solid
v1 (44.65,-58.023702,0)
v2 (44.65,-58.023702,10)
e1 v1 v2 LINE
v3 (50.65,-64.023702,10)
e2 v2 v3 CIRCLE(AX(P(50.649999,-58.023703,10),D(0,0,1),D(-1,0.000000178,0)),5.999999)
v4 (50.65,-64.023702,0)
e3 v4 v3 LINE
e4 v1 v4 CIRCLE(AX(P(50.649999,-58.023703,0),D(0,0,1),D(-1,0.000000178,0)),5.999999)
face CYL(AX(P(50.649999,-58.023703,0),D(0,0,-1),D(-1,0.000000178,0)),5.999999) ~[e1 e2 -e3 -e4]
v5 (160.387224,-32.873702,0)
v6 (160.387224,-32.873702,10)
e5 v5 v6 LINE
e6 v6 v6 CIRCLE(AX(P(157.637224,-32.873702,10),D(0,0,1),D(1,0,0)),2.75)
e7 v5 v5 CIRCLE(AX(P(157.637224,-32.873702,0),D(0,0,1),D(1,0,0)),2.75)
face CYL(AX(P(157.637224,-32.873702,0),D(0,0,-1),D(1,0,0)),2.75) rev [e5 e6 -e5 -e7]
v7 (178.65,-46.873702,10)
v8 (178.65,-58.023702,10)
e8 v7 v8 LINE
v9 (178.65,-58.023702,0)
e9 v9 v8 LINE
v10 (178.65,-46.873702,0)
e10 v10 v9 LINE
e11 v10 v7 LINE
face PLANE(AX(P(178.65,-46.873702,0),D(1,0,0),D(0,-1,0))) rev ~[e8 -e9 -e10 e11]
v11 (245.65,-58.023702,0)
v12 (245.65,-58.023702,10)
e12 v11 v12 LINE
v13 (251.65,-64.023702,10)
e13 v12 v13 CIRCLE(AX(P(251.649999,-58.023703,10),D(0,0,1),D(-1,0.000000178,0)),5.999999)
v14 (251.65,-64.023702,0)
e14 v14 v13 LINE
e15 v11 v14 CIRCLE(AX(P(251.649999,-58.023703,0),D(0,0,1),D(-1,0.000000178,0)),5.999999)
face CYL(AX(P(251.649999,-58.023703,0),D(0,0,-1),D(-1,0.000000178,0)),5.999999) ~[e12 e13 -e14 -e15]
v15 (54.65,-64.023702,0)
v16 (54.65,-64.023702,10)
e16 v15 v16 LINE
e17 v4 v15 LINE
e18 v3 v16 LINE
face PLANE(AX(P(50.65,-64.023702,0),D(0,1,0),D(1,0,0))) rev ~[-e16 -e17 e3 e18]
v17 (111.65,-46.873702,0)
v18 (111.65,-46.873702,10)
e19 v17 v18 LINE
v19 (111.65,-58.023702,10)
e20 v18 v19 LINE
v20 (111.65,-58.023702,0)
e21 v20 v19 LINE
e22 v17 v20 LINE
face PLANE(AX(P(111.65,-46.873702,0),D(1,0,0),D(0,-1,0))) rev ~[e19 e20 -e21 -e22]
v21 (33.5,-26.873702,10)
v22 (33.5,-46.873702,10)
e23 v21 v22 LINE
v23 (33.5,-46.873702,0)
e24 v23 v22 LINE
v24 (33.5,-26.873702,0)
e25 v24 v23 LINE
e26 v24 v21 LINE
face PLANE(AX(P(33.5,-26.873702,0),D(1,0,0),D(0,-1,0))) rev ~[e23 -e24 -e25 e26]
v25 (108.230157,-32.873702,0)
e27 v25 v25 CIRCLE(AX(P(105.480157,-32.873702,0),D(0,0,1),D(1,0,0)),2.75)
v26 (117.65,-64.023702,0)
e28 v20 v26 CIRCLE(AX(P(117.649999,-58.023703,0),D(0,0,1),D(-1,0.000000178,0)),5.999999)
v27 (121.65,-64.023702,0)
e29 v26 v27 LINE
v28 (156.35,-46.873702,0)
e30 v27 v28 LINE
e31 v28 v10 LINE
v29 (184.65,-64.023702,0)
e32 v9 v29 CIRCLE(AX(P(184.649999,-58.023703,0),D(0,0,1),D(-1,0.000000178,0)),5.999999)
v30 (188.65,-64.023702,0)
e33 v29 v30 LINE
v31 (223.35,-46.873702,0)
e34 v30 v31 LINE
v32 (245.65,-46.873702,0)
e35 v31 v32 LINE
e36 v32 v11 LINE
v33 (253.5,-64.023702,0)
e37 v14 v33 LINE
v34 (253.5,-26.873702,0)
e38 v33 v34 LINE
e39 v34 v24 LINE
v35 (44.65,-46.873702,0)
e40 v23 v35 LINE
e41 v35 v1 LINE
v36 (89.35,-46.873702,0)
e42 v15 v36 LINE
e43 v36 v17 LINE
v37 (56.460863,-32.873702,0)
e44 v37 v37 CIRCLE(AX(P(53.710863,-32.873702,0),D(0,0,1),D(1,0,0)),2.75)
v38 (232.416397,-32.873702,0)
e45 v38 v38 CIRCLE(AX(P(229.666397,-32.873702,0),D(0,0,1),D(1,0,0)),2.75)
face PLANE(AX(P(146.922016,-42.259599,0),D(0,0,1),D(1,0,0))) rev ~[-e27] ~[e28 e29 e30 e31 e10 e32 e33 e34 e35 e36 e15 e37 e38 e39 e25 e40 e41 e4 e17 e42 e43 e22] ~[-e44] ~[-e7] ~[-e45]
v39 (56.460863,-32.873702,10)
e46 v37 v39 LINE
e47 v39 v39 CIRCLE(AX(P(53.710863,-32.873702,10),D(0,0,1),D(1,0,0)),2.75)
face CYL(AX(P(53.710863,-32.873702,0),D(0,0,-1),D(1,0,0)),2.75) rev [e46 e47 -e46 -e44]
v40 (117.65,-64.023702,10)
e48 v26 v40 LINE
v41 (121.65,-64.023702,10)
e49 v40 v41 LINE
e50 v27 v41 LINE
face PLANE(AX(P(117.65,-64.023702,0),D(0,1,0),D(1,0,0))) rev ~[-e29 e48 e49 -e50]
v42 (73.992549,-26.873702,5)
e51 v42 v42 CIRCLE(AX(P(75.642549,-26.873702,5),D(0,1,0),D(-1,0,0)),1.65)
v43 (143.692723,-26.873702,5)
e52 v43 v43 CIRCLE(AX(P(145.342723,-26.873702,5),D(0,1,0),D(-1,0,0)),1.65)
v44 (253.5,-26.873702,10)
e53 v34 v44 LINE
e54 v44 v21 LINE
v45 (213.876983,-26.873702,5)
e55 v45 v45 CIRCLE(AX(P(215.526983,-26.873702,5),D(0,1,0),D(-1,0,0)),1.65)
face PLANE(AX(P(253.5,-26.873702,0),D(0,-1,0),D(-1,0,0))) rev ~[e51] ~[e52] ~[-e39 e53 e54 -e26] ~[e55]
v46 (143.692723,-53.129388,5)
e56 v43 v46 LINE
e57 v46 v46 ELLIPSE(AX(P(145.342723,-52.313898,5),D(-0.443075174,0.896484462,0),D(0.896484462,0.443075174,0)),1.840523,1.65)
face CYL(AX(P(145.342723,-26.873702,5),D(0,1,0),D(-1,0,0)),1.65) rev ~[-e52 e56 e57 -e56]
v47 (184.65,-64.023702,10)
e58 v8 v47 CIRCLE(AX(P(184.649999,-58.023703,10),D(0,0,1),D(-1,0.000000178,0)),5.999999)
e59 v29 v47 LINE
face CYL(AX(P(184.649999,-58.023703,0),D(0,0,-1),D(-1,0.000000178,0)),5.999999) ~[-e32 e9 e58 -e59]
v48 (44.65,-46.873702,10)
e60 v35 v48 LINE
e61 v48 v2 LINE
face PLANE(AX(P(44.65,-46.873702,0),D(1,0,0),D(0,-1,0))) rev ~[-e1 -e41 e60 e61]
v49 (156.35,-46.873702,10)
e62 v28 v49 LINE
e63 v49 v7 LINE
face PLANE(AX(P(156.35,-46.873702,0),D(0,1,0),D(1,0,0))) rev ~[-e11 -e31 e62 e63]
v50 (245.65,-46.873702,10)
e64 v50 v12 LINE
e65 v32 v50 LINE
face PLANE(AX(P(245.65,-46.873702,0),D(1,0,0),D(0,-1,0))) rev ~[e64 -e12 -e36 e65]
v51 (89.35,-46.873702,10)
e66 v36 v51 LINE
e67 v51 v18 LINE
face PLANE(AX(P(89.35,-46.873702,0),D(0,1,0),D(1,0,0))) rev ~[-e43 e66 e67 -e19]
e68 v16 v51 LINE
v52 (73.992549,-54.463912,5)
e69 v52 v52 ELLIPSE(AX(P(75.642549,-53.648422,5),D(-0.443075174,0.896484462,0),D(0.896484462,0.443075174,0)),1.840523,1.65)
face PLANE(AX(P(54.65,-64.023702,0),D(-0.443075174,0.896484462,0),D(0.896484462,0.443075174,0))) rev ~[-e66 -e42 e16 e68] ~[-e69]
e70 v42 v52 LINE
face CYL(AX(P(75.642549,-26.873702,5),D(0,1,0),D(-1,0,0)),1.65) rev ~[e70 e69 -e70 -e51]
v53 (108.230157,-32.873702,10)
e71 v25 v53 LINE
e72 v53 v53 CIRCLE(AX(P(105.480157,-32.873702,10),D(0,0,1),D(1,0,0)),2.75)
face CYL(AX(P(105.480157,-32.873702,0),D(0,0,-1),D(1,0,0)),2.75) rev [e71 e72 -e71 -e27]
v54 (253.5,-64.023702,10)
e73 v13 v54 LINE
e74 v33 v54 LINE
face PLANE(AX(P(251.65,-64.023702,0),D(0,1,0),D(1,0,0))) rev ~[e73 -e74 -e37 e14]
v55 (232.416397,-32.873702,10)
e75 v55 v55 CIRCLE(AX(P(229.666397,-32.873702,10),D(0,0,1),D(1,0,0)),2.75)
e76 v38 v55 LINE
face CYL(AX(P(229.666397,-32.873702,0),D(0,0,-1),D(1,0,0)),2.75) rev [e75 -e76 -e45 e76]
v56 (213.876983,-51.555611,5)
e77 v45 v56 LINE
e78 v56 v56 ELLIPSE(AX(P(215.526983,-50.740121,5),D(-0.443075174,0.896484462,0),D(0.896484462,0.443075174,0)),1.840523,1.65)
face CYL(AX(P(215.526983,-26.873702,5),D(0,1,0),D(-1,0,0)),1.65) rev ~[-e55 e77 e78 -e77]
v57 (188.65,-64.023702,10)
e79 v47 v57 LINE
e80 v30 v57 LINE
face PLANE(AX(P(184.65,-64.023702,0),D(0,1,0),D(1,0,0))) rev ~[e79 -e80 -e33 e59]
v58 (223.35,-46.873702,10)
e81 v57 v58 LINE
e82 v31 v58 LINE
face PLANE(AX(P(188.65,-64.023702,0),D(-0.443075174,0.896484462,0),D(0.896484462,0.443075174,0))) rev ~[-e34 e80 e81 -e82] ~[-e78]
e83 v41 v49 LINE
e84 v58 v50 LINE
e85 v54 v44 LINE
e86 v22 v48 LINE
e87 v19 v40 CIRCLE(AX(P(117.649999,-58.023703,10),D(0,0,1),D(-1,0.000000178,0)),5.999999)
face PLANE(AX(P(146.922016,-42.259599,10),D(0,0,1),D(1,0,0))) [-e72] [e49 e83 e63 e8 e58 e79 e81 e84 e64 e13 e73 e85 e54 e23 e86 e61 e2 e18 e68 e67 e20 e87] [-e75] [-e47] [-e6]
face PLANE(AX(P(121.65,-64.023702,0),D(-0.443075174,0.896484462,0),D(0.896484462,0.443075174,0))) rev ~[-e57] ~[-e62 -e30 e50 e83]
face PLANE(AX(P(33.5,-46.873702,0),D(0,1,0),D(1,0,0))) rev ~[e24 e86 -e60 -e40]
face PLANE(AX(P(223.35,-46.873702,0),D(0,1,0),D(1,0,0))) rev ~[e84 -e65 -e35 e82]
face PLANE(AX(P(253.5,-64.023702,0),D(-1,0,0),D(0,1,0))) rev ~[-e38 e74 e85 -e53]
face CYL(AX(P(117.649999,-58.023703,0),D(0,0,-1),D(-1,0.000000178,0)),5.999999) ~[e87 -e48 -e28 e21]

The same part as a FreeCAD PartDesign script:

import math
import FreeCAD as App
import Part
import Sketcher

V = App.Vector
Q = App.Units.Quantity

doc = App.newDocument("Part")
body = doc.addObject("PartDesign::Body", "Body")

# Sketch on XY plane
sketch1 = body.newObject("Sketcher::SketchObject", "Sketch")
sketch1.AttachmentSupport = (doc.getObject("XY_Plane"), [""])
sketch1.MapMode = "FlatFace"
sketch1.addGeometry([
    Part.LineSegment(V(253.5, -26.9, 0), V(33.5, -26.9, 0)),  # 0
    Part.LineSegment(V(33.5, -26.9, 0), V(33.5, -46.9, 0)),  # 1
    Part.LineSegment(V(33.5, -46.9, 0), V(44.6, -46.9, 0)),  # 2
    Part.LineSegment(V(44.6, -46.9, 0), V(44.6, -58, 0)),  # 3
    Part.ArcOfCircle(Part.Circle(V(50.6, -58, 0), V(0, 0, 1), 6), math.radians(180), math.radians(270)),  # 4
    Part.LineSegment(V(50.6, -64, 0), V(54.6, -64, 0)),  # 5
    Part.LineSegment(V(54.6, -64, 0), V(89.3, -46.9, 0)),  # 6
    Part.LineSegment(V(89.3, -46.9, 0), V(111.7, -46.9, 0)),  # 7
    Part.LineSegment(V(111.7, -46.9, 0), V(111.7, -58, 0)),  # 8
    Part.ArcOfCircle(Part.Circle(V(117.6, -58, 0), V(0, 0, 1), 6), math.radians(180), math.radians(270)),  # 9
    Part.LineSegment(V(117.7, -64, 0), V(121.7, -64, 0)),  # 10
    Part.LineSegment(V(121.7, -64, 0), V(156.3, -46.9, 0)),  # 11
    Part.LineSegment(V(156.3, -46.9, 0), V(178.7, -46.9, 0)),  # 12
    Part.LineSegment(V(178.7, -46.9, 0), V(178.7, -58, 0)),  # 13
    Part.ArcOfCircle(Part.Circle(V(184.6, -58, 0), V(0, 0, 1), 6), math.radians(180), math.radians(270)),  # 14
    Part.LineSegment(V(184.7, -64, 0), V(188.7, -64, 0)),  # 15
    Part.LineSegment(V(188.7, -64, 0), V(223.3, -46.9, 0)),  # 16
    Part.LineSegment(V(223.3, -46.9, 0), V(245.7, -46.9, 0)),  # 17
    Part.LineSegment(V(245.7, -46.9, 0), V(245.7, -58, 0)),  # 18
    Part.ArcOfCircle(Part.Circle(V(251.6, -58, 0), V(0, 0, 1), 6), math.radians(180), math.radians(270)),  # 19
    Part.LineSegment(V(251.7, -64, 0), V(253.5, -64, 0)),  # 20
    Part.LineSegment(V(253.5, -64, 0), V(253.5, -26.9, 0)),  # 21
    Part.Circle(V(53.7, -32.9, 0), V(0, 0, 1), 2.8),  # 22
    Part.Circle(V(105.5, -32.9, 0), V(0, 0, 1), 2.8),  # 23
    Part.Circle(V(157.6, -32.9, 0), V(0, 0, 1), 2.8),  # 24
    Part.Circle(V(229.7, -32.9, 0), V(0, 0, 1), 2.8),  # 25
], False)
sketch1.addConstraint([
    Sketcher.Constraint("Coincident", 0, 2, 1, 1),
    Sketcher.Constraint("Coincident", 1, 2, 2, 1),
    Sketcher.Constraint("Coincident", 2, 2, 3, 1),
    Sketcher.Constraint("Tangent", 3, 2, 4, 1),
    Sketcher.Constraint("Tangent", 4, 2, 5, 1),
    Sketcher.Constraint("Coincident", 5, 2, 6, 1),
    Sketcher.Constraint("Coincident", 6, 2, 7, 1),
    Sketcher.Constraint("Coincident", 7, 2, 8, 1),
    Sketcher.Constraint("Tangent", 8, 2, 9, 1),
    Sketcher.Constraint("Tangent", 9, 2, 10, 1),
    Sketcher.Constraint("Coincident", 10, 2, 11, 1),
    Sketcher.Constraint("Coincident", 11, 2, 12, 1),
    Sketcher.Constraint("Coincident", 12, 2, 13, 1),
    Sketcher.Constraint("Tangent", 13, 2, 14, 1),
    Sketcher.Constraint("Tangent", 14, 2, 15, 1),
    Sketcher.Constraint("Coincident", 15, 2, 16, 1),
    Sketcher.Constraint("Coincident", 16, 2, 17, 1),
    Sketcher.Constraint("Coincident", 17, 2, 18, 1),
    Sketcher.Constraint("Tangent", 18, 2, 19, 1),
    Sketcher.Constraint("Tangent", 19, 2, 20, 1),
    Sketcher.Constraint("Coincident", 20, 2, 21, 1),
    Sketcher.Constraint("Coincident", 21, 2, 0, 1),
    Sketcher.Constraint("Horizontal", 0),
    Sketcher.Constraint("Vertical", 1),
    Sketcher.Constraint("Horizontal", 2),
    Sketcher.Constraint("Vertical", 3),
    Sketcher.Constraint("Horizontal", 5),
    Sketcher.Constraint("Horizontal", 7),
    Sketcher.Constraint("Vertical", 8),
    Sketcher.Constraint("Horizontal", 10),
    Sketcher.Constraint("Horizontal", 12),
    Sketcher.Constraint("Vertical", 13),
    Sketcher.Constraint("Horizontal", 15),
    Sketcher.Constraint("Horizontal", 17),
    Sketcher.Constraint("Vertical", 18),
    Sketcher.Constraint("Horizontal", 20),
    Sketcher.Constraint("Vertical", 21),
    Sketcher.Constraint("Equal", 4, 9),
    Sketcher.Constraint("Equal", 9, 14),
    Sketcher.Constraint("Equal", 14, 19),
    Sketcher.Constraint("Equal", 22, 23),
    Sketcher.Constraint("Equal", 23, 24),
    Sketcher.Constraint("Equal", 24, 25),
    Sketcher.Constraint("Parallel", 6, 11),
    Sketcher.Constraint("Parallel", 11, 16),
    Sketcher.Constraint("Horizontal", 4, 3, 9, 3),
    Sketcher.Constraint("Horizontal", 9, 3, 14, 3),
    Sketcher.Constraint("Horizontal", 14, 3, 19, 3),
    Sketcher.Constraint("Horizontal", 22, 3, 23, 3),
    Sketcher.Constraint("Horizontal", 23, 3, 24, 3),
    Sketcher.Constraint("Horizontal", 24, 3, 25, 3),
    Sketcher.Constraint("Horizontal", 2, 2, 6, 2),
    Sketcher.Constraint("Horizontal", 7, 2, 11, 2),
    Sketcher.Constraint("Horizontal", 12, 2, 16, 2),
    Sketcher.Constraint("Equal", 5, 10),
    Sketcher.Constraint("Equal", 7, 12),
    Sketcher.Constraint("Equal", 10, 15),
    Sketcher.Constraint("Equal", 12, 17),
    Sketcher.Constraint("Equal", 2, 3),
    Sketcher.Constraint("Radius", 4, Q("5.999999 mm")),
    Sketcher.Constraint("Diameter", 22, Q("5.5 mm")),
    Sketcher.Constraint("DistanceX", 0, 2, 0, 1, Q("220 mm")),
    Sketcher.Constraint("DistanceX", 5, 1, 5, 2, Q("4 mm")),
    Sketcher.Constraint("DistanceY", 1, 2, 1, 1, Q("20 mm")),
    Sketcher.Constraint("DistanceX", 7, 1, 7, 2, Q("22.3 mm")),
    Sketcher.Constraint("DistanceX", 4, 3, 9, 3, Q("67 mm")),
    Sketcher.Constraint("DistanceY", 22, 3, 0, 2, Q("6 mm")),
    Sketcher.Constraint("DistanceX", 2, 1, 2, 2, Q("11.15 mm")),
    Sketcher.Constraint("DistanceX", -1, 1, 0, 2, Q("33.5 mm")),
    Sketcher.Constraint("DistanceY", 4, 2, -1, 1, Q("64.023702 mm")),
    Sketcher.Constraint("DistanceX", 25, 3, 19, 3, Q("21.983602 mm")),
    Sketcher.Constraint("DistanceX", 23, 3, 9, 3, Q("12.169842 mm")),
    Sketcher.Constraint("DistanceX", 22, 3, 24, 3, Q("103.926361 mm")),
    Sketcher.Constraint("DistanceX", -1, 1, 22, 3, Q("53.710863 mm")),
])
pad1 = body.newObject("PartDesign::Pad", "Pad")
pad1.Profile = sketch1
pad1.Length = 10

# Sketch on XZ plane
sketch2 = body.newObject("Sketcher::SketchObject", "Sketch001")
sketch2.AttachmentSupport = (doc.getObject("XZ_Plane"), [""])
sketch2.MapMode = "FlatFace"
sketch2.AttachmentOffset = App.Placement(V(0, 0, 26.873702), App.Rotation())
sketch2.addGeometry([
    Part.Circle(V(75.6, 5, 0), V(0, 0, 1), 1.6),
    Part.Circle(V(145.3, 5, 0), V(0, 0, 1), 1.6),
    Part.Circle(V(215.5, 5, 0), V(0, 0, 1), 1.6),
], False)
sketch2.addConstraint([
    Sketcher.Constraint("Equal", 0, 1),
    Sketcher.Constraint("Equal", 1, 2),
    Sketcher.Constraint("Horizontal", 0, 3, 1, 3),
    Sketcher.Constraint("Horizontal", 1, 3, 2, 3),
    Sketcher.Constraint("Diameter", 0, Q("3.3 mm")),
    Sketcher.Constraint("DistanceY", -1, 1, 0, 3, Q("5 mm")),
    Sketcher.Constraint("DistanceX", -1, 1, 0, 3, Q("75.642549 mm")),
    Sketcher.Constraint("DistanceX", 1, 3, 2, 3, Q("70.18426 mm")),
    Sketcher.Constraint("DistanceX", -1, 1, 1, 3, Q("145.342723 mm")),
])
pocket1 = body.newObject("PartDesign::Pocket", "Pocket")
pocket1.Profile = sketch2
pocket1.Length = 47
pocket1.Reversed = True

doc.recompute()
